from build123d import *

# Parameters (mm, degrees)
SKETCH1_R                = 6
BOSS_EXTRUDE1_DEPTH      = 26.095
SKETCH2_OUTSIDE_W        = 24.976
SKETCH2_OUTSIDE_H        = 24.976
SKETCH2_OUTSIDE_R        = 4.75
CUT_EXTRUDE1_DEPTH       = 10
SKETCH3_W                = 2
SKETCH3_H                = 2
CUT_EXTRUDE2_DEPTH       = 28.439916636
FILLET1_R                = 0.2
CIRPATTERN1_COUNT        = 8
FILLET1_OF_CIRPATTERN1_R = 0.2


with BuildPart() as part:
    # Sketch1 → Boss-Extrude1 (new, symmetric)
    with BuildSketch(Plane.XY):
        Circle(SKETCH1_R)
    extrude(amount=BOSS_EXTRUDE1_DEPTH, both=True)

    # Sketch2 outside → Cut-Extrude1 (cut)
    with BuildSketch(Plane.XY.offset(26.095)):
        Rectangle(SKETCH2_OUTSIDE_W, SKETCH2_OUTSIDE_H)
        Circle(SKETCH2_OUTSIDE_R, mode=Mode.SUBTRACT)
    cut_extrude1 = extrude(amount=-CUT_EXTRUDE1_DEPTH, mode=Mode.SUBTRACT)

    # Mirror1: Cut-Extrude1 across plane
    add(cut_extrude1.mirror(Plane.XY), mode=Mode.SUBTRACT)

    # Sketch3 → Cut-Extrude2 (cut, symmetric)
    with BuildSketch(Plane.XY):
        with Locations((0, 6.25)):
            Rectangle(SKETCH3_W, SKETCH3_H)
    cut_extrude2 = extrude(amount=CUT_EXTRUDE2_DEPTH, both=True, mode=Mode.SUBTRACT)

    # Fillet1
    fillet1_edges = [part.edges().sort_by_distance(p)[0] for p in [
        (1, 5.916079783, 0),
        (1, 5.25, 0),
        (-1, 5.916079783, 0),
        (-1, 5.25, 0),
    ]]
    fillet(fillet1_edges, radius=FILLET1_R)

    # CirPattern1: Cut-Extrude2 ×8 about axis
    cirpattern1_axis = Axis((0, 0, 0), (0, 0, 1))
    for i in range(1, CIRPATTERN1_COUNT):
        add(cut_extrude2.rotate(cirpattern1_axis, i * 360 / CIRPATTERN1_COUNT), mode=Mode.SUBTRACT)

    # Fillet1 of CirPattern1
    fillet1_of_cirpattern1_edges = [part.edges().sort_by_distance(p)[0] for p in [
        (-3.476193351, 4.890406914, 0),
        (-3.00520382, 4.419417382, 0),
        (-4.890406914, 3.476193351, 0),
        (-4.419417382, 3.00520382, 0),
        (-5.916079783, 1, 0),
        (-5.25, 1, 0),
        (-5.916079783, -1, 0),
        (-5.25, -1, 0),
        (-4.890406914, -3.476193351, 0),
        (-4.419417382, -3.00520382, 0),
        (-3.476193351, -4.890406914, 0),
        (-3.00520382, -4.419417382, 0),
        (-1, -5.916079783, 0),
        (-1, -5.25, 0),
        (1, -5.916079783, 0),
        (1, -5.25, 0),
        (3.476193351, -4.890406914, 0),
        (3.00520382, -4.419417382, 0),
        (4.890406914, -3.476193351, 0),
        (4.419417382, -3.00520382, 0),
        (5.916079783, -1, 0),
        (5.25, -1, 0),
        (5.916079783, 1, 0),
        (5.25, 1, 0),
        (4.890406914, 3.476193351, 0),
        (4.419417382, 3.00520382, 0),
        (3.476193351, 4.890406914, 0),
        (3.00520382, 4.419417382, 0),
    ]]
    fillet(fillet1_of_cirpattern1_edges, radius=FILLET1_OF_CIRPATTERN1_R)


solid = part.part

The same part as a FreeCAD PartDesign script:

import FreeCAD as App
import Part
import Sketcher
from FreeCAD import Vector
Q = App.Units.Quantity


def edges_at(feature, points):
    """Names of the edges that pass closest to the given points."""
    edges = feature.Shape.Edges
    near = lambda p: min(range(len(edges)), key=lambda i: edges[i].distToShape(Part.Vertex(*p))[0])
    return sorted({f"Edge{near(p) + 1}" for p in points})

doc = App.newDocument("Part")
body = doc.addObject("PartDesign::Body", "Body")

# Sketch on XY plane
sketch1 = body.newObject("Sketcher::SketchObject", "Sketch")
sketch1.AttachmentSupport = (doc.getObject("XY_Plane"), [""])
sketch1.MapMode = "FlatFace"
sketch1.addGeometry(Part.Circle(Vector(0, 0, 0), Vector(0, 0, 1), 6), False)
sketch1.addConstraint(Sketcher.Constraint("Coincident", 0, 3, -1, 1))
sketch1.addConstraint(Sketcher.Constraint("Diameter", 0, Q("12 mm")))
pad1 = body.newObject("PartDesign::Pad", "Pad")
pad1.Profile = sketch1
pad1.Length = 52.19
pad1.Midplane = True

# Sketch on XY plane
sketch2 = body.newObject("Sketcher::SketchObject", "Sketch001")
sketch2.AttachmentSupport = (doc.getObject("XY_Plane"), [""])
sketch2.MapMode = "FlatFace"
sketch2.AttachmentOffset = App.Placement(Vector(0, 0, 26.095), App.Rotation())
sketch2.addGeometry(Part.LineSegment(Vector(-12.488, 12.488, 0), Vector(-12.488, -12.488, 0)), False)
sketch2.addGeometry(Part.LineSegment(Vector(-12.488, -12.488, 0), Vector(12.488, -12.488, 0)), False)
sketch2.addGeometry(Part.LineSegment(Vector(12.488, -12.488, 0), Vector(12.488, 12.488, 0)), False)
sketch2.addGeometry(Part.LineSegment(Vector(12.488, 12.488, 0), Vector(-12.488, 12.488, 0)), False)
sketch2.addGeometry(Part.Circle(Vector(0, 0, 0), Vector(0, 0, 1), 4.75), False)
sketch2.addConstraint(Sketcher.Constraint("Coincident", 0, 2, 1, 1))
sketch2.addConstraint(Sketcher.Constraint("Coincident", 1, 2, 2, 1))
sketch2.addConstraint(Sketcher.Constraint("Coincident", 2, 2, 3, 1))
sketch2.addConstraint(Sketcher.Constraint("Coincident", 3, 2, 0, 1))
sketch2.addConstraint(Sketcher.Constraint("Vertical", 0))
sketch2.addConstraint(Sketcher.Constraint("Horizontal", 1))
sketch2.addConstraint(Sketcher.Constraint("Vertical", 2))
sketch2.addConstraint(Sketcher.Constraint("Horizontal", 3))
sketch2.addConstraint(Sketcher.Constraint("Coincident", 4, 3, -1, 1))
sketch2.addConstraint(Sketcher.Constraint("Symmetric", 0, 2, 2, 2, -1, 1))
sketch2.addConstraint(Sketcher.Constraint("Equal", 3, 0))
sketch2.addConstraint(Sketcher.Constraint("Diameter", 4, Q("9.5 mm")))
sketch2.addConstraint(Sketcher.Constraint("DistanceX", 1, 1, 1, 2, Q("24.976 mm")))
pocket1 = body.newObject("PartDesign::Pocket", "Pocket")
pocket1.Profile = sketch2
pocket1.Length = 10
doc.recompute()

mirrored = body.newObject("PartDesign::Mirrored", "Mirrored")
mirrored.Originals = [pocket1]
mirrored.MirrorPlane = (doc.getObject("XY_Plane"), [""])
body.Tip = mirrored

# Sketch on XY plane
sketch3 = body.newObject("Sketcher::SketchObject", "Sketch002")
sketch3.AttachmentSupport = (doc.getObject("XY_Plane"), [""])
sketch3.MapMode = "FlatFace"
sketch3.addGeometry(Part.LineSegment(Vector(-1, 7.25, 0), Vector(-1, 5.25, 0)), False)
sketch3.addGeometry(Part.LineSegment(Vector(-1, 5.25, 0), Vector(1, 5.25, 0)), False)
sketch3.addGeometry(Part.LineSegment(Vector(1, 5.25, 0), Vector(1, 7.25, 0)), False)
sketch3.addGeometry(Part.LineSegment(Vector(1, 7.25, 0), Vector(-1, 7.25, 0)), False)
sketch3.addConstraint(Sketcher.Constraint("Coincident", 0, 2, 1, 1))
sketch3.addConstraint(Sketcher.Constraint("Coincident", 1, 2, 2, 1))
sketch3.addConstraint(Sketcher.Constraint("Coincident", 2, 2, 3, 1))
sketch3.addConstraint(Sketcher.Constraint("Coincident", 3, 2, 0, 1))
sketch3.addConstraint(Sketcher.Constraint("Vertical", 0))
sketch3.addConstraint(Sketcher.Constraint("Horizontal", 1))
sketch3.addConstraint(Sketcher.Constraint("Vertical", 2))
sketch3.addConstraint(Sketcher.Constraint("Horizontal", 3))
sketch3.addConstraint(Sketcher.Constraint("Equal", 3, 0))
sketch3.addConstraint(Sketcher.Constraint("DistanceX", 1, 1, 1, 2, Q("2 mm")))
sketch3.addConstraint(Sketcher.Constraint("DistanceX", 0, 2, -1, 1, Q("1 mm")))
sketch3.addConstraint(Sketcher.Constraint("DistanceY", -1, 1, 0, 2, Q("5.25 mm")))
pocket2 = body.newObject("PartDesign::Pocket", "Pocket001")
pocket2.Profile = sketch3
pocket2.Length = 56.879833
pocket2.Midplane = True
doc.recompute()

fillet = body.newObject("PartDesign::Fillet", "Fillet")
fillet.Base = (pocket2, edges_at(pocket2, [
    (1, 5.916, 0),
    (1, 5.25, 0),
    (-1, 5.916, 0),
    (-1, 5.25, 0),
]))
fillet.Radius = 0.2
doc.recompute()

polarpattern = body.newObject("PartDesign::PolarPattern", "PolarPattern")
polarpattern.Originals = [pocket2]
polarpattern.Axis = (doc.getObject("Z_Axis"), [""])
polarpattern.Angle = 360
polarpattern.Occurrences = 8
body.Tip = polarpattern
doc.recompute()

fillet2 = body.newObject("PartDesign::Fillet", "Fillet001")
fillet2.Base = (polarpattern, edges_at(polarpattern, [
    (-3.476, 4.89, 0),
    (-3.005, 4.419, 0),
    (-4.89, 3.476, 0),
    (-4.419, 3.005, 0),
    (-5.916, 1, 0),
    (-5.25, 1, 0),
    (-5.916, -1, 0),
    (-5.25, -1, 0),
    (-4.89, -3.476, 0),
    (-4.419, -3.005, 0),
    (-3.476, -4.89, 0),
    (-3.005, -4.419, 0),
    (-1, -5.916, 0),
    (-1, -5.25, 0),
    (1, -5.916, 0),
    (1, -5.25, 0),
    (3.476, -4.89, 0),
    (3.005, -4.419, 0),
    (4.89, -3.476, 0),
    (4.419, -3.005, 0),
    (5.916, -1, 0),
    (5.25, -1, 0),
    (5.916, 1, 0),
    (5.25, 1, 0),
    (4.89, 3.476, 0),
    (4.419, 3.005, 0),
    (3.476, 4.89, 0),
    (3.005, 4.419, 0),
]))
fillet2.Radius = 0.2

doc.recompute()
